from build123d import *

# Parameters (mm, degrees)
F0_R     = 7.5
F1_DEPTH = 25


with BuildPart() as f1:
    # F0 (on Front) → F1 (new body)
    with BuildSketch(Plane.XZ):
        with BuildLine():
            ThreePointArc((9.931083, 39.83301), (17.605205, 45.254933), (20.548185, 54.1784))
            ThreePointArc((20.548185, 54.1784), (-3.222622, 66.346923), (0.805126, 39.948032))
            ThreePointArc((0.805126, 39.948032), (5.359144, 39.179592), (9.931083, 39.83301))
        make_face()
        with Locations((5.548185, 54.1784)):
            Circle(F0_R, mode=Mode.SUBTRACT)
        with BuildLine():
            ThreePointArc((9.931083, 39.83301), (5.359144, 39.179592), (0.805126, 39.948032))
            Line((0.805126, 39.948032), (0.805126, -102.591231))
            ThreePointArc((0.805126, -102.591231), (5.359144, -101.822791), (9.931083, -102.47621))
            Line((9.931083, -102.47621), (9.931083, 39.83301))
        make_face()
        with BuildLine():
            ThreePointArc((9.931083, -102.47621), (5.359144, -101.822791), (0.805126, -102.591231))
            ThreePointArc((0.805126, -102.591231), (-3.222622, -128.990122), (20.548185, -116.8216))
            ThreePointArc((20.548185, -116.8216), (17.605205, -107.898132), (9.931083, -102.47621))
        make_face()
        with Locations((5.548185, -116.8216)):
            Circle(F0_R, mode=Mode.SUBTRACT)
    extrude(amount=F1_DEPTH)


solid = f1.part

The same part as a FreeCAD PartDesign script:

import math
import FreeCAD as App
import Part
import Sketcher
from FreeCAD import Vector
Q = App.Units.Quantity

doc = App.newDocument("Part")
body = doc.addObject("PartDesign::Body", "Body")

# Sketch on XZ plane
sketch1 = body.newObject("Sketcher::SketchObject", "Sketch")
sketch1.AttachmentSupport = (doc.getObject("XZ_Plane"), [""])
sketch1.MapMode = "FlatFace"
sketch1.addGeometry([
    Part.ArcOfCircle(Part.Circle(Vector(6, 54, 0), Vector(0, 0, 1), 15), math.radians(-73), math.radians(0)),  # 0
    Part.ArcOfCircle(Part.Circle(Vector(6, 54, 0), Vector(0, 0, 1), 15), math.radians(0), math.radians(252)),  # 1
    Part.LineSegment(Vector(1, 40, 0), Vector(1, -103, 0)),  # 2
    Part.ArcOfCircle(Part.Circle(Vector(6, -117, 0), Vector(0, 0, 1), 15), math.radians(108), math.radians(360)),  # 3
    Part.ArcOfCircle(Part.Circle(Vector(6, -117, 0), Vector(0, 0, 1), 15), math.radians(0), math.radians(73)),  # 4
    Part.LineSegment(Vector(10, -102, 0), Vector(10, 40, 0)),  # 5
    Part.Circle(Vector(6, -117, 0), Vector(0, 0, 1), 8),  # 6
    Part.Circle(Vector(6, 54, 0), Vector(0, 0, 1), 8),  # 7
], False)
sketch1.addConstraint([
    Sketcher.Constraint("Tangent", 0, 2, 1, 1),
    Sketcher.Constraint("Coincident", 1, 2, 2, 1),
    Sketcher.Constraint("Coincident", 2, 2, 3, 1),
    Sketcher.Constraint("Tangent", 3, 2, 4, 1),
    Sketcher.Constraint("Coincident", 4, 2, 5, 1),
    Sketcher.Constraint("Coincident", 5, 2, 0, 1),
    Sketcher.Constraint("Vertical", 2),
    Sketcher.Constraint("Vertical", 5),
    Sketcher.Constraint("Coincident", 6, 3, 3, 3),
    Sketcher.Constraint("Coincident", 7, 3, 0, 3),
    Sketcher.Constraint("Equal", 0, 1),
    Sketcher.Constraint("Equal", 1, 3),
    Sketcher.Constraint("Equal", 3, 4),
    Sketcher.Constraint("Equal", 6, 7),
    Sketcher.Constraint("Horizontal", 7, 3, 0, 2),
    Sketcher.Constraint("Horizontal", 6, 3, 3, 2),
    Sketcher.Constraint("Vertical", 1, 3, 3, 3),
    Sketcher.Constraint("Diameter", 6, Q("15 mm")),
    Sketcher.Constraint("Radius", 0, Q("15.000002 mm")),
    Sketcher.Constraint("DistanceY", 3, 3, 1, 3, Q("171 mm")),
    Sketcher.Constraint("DistanceY", 5, 1, 5, 2, Q("142.30922 mm")),
    Sketcher.Constraint("DistanceY", -1, 1, 0, 3, Q("54.178401 mm")),
    Sketcher.Constraint("DistanceY", 2, 2, 2, 1, Q("142.539263 mm")),
    Sketcher.Constraint("DistanceX", -1, 1, 0, 3, Q("5.548183 mm")),
])
pad1 = body.newObject("PartDesign::Pad", "Pad")
pad1.Profile = sketch1
pad1.Length = 25

doc.recompute()
